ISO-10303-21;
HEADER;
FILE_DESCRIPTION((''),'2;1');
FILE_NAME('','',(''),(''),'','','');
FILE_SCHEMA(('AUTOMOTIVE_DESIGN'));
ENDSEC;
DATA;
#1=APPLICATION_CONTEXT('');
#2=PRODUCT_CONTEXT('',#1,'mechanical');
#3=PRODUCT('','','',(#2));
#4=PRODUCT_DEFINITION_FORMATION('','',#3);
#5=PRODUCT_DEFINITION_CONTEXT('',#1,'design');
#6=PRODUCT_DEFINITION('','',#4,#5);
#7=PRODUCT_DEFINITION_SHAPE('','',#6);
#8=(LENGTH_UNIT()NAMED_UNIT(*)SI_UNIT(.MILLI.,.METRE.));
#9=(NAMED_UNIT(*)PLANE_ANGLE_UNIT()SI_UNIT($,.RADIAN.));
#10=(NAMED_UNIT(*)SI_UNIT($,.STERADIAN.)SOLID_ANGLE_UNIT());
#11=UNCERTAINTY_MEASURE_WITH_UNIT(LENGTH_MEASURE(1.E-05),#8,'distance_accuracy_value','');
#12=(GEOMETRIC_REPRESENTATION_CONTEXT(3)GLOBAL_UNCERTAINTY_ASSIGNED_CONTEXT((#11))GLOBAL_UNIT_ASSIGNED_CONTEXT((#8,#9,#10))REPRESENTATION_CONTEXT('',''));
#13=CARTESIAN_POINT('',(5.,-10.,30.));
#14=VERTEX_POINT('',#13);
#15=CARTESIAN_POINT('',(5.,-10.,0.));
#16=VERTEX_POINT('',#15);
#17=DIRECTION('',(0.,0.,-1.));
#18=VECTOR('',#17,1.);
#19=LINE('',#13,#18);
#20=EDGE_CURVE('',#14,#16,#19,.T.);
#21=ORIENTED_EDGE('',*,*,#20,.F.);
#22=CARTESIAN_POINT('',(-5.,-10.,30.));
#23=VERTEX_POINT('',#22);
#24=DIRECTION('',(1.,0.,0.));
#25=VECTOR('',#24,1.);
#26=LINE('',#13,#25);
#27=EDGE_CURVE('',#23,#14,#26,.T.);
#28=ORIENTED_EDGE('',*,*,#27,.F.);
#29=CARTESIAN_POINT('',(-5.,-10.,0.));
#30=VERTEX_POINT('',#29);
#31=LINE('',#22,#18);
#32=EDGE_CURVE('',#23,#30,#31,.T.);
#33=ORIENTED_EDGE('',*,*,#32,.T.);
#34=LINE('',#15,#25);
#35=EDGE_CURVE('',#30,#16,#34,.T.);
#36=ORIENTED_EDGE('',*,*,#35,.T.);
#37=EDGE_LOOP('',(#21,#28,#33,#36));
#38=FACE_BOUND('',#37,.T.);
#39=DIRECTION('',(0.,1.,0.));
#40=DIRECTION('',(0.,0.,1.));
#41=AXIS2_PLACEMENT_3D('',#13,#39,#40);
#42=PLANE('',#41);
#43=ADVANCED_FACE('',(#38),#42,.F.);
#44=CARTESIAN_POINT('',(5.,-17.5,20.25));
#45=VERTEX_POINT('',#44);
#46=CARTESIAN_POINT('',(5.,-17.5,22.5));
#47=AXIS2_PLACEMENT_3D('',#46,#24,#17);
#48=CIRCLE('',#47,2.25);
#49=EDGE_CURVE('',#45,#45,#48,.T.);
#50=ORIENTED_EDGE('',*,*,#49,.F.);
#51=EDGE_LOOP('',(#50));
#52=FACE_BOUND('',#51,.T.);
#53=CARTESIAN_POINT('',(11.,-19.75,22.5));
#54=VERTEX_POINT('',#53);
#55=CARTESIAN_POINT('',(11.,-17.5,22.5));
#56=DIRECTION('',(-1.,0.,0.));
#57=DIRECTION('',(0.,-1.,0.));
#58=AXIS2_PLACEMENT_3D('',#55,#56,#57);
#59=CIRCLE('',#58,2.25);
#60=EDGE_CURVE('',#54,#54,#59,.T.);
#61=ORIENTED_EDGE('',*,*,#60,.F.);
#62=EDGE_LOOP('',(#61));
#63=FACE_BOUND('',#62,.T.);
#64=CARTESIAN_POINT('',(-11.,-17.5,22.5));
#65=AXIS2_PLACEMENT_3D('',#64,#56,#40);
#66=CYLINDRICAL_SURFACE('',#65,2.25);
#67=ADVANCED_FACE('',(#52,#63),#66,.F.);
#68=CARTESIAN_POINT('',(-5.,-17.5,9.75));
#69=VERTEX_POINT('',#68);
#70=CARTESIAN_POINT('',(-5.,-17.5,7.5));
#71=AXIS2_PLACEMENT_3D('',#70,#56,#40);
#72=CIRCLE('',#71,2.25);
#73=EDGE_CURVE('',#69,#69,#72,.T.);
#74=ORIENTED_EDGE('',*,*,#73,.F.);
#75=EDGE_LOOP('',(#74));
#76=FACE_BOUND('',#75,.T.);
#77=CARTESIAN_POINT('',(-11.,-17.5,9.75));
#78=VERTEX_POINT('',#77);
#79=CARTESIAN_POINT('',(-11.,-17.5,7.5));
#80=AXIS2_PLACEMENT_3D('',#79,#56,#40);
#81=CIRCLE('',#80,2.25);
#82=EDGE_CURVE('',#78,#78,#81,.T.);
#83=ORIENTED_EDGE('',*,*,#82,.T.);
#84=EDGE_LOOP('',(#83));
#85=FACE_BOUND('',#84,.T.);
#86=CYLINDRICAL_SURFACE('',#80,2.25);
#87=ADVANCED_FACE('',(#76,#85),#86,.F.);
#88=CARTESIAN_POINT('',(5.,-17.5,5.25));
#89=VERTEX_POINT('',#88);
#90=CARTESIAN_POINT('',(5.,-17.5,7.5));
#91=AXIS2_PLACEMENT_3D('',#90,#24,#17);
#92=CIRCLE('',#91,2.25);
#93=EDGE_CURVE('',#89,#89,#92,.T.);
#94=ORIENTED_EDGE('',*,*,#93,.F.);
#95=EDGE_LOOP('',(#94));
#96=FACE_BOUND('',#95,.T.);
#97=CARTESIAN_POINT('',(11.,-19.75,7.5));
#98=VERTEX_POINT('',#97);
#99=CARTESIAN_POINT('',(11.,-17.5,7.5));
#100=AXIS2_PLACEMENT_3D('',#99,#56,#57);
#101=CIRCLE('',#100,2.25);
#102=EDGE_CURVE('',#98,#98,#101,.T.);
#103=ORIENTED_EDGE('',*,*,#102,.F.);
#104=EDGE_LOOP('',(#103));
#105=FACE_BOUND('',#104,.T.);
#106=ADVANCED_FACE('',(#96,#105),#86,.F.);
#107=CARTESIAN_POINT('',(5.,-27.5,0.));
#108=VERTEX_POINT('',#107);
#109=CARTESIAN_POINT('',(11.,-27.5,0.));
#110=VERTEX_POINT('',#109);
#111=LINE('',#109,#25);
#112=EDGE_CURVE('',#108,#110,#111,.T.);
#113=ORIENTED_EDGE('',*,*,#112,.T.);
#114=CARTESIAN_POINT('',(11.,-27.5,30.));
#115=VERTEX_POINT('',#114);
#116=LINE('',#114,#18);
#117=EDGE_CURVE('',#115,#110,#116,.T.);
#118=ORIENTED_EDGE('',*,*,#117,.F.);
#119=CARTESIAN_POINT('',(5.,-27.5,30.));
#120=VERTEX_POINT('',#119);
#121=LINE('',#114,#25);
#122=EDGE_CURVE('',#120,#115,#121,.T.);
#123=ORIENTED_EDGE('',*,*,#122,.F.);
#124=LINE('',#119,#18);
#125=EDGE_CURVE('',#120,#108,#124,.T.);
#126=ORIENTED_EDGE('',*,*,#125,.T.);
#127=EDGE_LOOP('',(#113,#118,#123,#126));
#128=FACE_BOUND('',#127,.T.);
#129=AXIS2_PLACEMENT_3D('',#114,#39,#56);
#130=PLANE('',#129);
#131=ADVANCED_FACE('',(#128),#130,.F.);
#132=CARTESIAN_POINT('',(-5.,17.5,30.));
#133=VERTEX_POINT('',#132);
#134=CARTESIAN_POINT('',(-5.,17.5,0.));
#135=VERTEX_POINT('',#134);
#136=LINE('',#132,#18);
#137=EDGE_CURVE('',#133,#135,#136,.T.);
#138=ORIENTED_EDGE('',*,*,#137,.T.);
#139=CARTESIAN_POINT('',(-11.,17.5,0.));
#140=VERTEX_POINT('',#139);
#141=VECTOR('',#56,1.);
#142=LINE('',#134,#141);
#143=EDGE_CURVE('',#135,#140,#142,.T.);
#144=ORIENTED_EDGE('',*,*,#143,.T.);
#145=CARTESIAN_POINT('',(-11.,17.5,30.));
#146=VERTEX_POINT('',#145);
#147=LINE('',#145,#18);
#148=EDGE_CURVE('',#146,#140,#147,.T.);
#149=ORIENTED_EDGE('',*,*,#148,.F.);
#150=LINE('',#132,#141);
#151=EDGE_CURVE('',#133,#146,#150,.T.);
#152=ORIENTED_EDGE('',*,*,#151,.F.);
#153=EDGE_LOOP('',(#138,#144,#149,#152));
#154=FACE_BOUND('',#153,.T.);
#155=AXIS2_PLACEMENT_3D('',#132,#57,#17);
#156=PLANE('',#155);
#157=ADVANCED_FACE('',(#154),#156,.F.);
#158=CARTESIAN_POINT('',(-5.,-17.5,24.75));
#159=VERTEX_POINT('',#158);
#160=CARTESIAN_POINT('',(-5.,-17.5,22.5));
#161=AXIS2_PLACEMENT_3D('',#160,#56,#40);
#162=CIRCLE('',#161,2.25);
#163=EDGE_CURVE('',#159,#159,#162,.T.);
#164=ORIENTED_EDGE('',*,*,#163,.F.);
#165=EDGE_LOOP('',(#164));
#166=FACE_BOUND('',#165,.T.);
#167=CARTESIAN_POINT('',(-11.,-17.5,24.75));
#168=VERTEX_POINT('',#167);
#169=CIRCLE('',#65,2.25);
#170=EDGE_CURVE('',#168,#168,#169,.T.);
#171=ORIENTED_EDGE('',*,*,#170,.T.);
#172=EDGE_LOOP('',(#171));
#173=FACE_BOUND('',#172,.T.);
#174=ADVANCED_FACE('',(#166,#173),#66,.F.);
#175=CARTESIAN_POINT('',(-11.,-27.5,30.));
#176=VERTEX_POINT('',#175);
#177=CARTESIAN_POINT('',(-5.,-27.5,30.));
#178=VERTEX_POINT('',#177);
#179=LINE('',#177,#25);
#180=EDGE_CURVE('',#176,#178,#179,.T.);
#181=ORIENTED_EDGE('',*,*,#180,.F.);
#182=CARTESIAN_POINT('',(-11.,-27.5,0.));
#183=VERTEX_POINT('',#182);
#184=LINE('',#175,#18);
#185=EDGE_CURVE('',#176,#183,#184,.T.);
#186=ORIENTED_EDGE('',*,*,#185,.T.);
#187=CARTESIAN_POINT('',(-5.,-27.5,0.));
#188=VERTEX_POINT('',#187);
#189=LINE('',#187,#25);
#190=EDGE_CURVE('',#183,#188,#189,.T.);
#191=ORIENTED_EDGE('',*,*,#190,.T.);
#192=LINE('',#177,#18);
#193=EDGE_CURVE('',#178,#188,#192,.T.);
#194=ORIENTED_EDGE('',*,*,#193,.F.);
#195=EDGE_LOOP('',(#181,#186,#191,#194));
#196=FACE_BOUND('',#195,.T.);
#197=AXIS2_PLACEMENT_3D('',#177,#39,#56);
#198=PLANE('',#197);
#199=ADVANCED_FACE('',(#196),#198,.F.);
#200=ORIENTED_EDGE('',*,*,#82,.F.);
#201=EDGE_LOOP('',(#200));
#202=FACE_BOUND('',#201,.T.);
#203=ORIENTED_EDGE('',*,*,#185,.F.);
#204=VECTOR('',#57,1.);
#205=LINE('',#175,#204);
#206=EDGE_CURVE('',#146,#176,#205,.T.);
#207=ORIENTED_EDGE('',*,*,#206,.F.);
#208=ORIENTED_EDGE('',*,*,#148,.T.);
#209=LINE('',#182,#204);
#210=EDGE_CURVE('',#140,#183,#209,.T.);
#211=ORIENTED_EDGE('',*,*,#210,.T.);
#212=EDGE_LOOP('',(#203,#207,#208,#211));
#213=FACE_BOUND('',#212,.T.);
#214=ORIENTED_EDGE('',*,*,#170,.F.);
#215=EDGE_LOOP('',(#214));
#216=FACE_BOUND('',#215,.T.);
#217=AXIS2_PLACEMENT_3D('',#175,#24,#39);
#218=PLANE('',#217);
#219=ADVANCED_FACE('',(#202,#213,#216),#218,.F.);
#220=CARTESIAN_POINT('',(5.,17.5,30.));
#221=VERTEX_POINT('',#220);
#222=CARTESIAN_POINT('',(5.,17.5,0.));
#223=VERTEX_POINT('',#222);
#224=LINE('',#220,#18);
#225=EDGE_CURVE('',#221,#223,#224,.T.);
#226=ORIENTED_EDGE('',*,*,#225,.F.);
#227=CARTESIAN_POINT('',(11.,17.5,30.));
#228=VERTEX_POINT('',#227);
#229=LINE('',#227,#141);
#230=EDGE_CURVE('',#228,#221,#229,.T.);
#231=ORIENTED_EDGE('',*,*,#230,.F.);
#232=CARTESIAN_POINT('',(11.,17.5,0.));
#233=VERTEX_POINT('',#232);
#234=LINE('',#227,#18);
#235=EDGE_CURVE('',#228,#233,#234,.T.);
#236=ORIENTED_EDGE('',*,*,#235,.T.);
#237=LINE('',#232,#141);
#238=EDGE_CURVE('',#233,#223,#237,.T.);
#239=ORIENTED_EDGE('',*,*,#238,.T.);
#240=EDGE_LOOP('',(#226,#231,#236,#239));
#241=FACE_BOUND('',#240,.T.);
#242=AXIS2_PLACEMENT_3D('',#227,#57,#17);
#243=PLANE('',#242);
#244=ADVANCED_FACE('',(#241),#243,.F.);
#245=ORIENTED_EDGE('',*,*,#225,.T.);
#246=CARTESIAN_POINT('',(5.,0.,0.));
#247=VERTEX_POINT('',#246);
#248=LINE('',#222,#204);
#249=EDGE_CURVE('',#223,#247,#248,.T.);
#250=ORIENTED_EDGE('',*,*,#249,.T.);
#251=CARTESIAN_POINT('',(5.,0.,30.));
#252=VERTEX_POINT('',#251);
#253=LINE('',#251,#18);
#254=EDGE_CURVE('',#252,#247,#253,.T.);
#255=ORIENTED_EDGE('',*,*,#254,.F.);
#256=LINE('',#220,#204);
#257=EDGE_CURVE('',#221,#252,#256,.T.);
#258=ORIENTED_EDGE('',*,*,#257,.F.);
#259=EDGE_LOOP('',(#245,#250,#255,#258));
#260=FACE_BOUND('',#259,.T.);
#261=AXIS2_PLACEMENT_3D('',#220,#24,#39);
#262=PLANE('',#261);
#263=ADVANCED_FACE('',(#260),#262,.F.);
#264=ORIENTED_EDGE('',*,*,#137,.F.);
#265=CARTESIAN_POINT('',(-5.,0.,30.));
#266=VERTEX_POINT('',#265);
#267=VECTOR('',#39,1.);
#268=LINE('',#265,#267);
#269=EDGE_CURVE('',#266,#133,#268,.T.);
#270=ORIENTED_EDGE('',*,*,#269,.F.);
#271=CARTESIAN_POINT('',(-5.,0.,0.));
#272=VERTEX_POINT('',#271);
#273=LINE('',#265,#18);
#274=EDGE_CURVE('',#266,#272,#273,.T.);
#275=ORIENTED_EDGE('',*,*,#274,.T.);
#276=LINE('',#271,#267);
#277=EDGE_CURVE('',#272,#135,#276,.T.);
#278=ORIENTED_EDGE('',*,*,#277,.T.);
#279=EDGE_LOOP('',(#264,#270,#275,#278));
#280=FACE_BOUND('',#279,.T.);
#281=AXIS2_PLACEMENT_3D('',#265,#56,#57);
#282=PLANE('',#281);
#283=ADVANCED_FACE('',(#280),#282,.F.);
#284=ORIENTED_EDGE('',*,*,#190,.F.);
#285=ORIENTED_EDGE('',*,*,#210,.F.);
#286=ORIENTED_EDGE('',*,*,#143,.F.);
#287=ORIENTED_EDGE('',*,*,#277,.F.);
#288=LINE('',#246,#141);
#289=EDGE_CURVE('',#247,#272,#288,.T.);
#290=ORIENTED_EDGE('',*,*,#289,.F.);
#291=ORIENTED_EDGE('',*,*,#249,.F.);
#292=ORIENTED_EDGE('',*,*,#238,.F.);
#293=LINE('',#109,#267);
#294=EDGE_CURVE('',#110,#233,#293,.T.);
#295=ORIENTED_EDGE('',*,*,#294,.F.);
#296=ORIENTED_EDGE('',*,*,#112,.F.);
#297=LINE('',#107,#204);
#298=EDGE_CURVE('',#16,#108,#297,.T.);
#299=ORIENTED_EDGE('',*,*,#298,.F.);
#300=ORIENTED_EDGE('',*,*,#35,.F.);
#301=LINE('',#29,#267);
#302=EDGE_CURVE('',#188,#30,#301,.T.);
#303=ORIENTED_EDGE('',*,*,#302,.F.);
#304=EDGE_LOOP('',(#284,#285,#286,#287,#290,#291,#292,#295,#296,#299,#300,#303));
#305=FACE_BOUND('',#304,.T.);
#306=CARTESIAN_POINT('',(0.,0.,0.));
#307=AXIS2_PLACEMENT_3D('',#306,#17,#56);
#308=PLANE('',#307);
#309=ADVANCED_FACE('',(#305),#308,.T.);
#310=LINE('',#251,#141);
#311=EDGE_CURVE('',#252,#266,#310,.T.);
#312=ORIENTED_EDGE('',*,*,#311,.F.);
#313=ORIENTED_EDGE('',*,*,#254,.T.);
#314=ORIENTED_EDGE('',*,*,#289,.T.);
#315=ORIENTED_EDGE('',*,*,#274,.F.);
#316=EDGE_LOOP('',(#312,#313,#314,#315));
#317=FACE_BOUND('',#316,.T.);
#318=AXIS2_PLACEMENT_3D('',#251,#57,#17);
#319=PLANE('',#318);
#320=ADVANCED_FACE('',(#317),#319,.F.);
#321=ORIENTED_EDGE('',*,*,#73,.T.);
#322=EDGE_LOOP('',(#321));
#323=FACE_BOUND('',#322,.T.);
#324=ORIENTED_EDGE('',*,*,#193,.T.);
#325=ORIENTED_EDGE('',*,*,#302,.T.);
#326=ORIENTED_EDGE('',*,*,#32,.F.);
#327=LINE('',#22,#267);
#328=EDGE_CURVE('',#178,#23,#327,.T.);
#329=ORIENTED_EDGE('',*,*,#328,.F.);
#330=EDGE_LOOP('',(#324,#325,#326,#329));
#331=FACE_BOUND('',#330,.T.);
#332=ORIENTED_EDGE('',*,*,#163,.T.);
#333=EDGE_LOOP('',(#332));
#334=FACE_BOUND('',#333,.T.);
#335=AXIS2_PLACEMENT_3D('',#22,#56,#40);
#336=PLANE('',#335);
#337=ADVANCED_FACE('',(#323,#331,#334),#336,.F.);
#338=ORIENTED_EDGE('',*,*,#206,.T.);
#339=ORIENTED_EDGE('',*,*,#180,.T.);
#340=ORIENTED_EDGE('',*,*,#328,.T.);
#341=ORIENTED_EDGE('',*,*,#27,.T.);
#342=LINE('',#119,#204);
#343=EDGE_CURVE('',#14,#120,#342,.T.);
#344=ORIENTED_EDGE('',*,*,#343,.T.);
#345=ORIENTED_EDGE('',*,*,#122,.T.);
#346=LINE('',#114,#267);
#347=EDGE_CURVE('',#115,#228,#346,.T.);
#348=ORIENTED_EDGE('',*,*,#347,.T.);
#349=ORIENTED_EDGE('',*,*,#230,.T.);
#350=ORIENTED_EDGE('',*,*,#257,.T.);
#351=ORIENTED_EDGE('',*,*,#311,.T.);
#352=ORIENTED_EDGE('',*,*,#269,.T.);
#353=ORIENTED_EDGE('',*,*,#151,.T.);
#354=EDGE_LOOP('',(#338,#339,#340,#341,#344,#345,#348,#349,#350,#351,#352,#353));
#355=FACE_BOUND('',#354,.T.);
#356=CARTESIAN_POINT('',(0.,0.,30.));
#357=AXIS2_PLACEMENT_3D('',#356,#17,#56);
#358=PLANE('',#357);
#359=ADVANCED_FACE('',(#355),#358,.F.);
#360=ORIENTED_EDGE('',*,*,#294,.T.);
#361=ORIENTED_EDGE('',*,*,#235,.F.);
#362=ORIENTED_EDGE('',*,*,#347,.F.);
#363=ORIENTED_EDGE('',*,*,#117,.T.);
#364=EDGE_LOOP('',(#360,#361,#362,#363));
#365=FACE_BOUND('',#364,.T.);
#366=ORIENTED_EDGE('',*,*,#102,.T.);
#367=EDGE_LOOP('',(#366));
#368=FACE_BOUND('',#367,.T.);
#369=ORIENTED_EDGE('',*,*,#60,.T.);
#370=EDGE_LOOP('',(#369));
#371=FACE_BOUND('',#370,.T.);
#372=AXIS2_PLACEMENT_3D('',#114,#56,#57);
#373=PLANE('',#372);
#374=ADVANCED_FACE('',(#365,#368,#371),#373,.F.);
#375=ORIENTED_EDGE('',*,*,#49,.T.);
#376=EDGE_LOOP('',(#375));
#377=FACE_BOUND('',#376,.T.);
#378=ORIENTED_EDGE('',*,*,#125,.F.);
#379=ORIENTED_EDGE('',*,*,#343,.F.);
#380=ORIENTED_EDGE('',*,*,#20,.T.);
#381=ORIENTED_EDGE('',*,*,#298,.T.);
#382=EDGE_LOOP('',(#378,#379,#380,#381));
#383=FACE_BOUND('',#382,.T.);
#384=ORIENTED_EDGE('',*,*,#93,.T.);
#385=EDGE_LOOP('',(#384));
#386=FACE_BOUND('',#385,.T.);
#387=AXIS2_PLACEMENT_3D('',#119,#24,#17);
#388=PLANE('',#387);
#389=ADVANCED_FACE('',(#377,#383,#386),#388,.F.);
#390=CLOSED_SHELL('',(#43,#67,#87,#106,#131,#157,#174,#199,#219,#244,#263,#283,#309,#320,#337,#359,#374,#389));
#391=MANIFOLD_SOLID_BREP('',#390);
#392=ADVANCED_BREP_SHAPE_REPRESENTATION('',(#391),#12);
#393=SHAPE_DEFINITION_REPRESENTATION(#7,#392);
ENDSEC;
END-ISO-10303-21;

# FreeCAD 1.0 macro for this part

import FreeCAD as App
import Part
import Sketcher
from FreeCAD import Vector


def add_polygon(sketch, points):
    """Adds a closed chain of lines whose ends are joined by coincident constraints."""
    first, n = sketch.GeometryCount, len(points)
    for a, b in zip(points, points[1:] + points[:1]):
        sketch.addGeometry(Part.LineSegment(App.Vector(*a, 0), App.Vector(*b, 0)), False)
    for i in range(n):
        sketch.addConstraint(Sketcher.Constraint("Coincident", first + i, 2, first + (i + 1) % n, 1))

doc = App.newDocument("Part")
body = doc.addObject("PartDesign::Body", "Body")

# Sketch on XY plane
sketch1 = doc.addObject("Sketcher::SketchObject", "Sketch")
body.addObject(sketch1)
sketch1.AttachmentSupport = (doc.XY_Plane, [""])
sketch1.MapMode = "FlatFace"
add_polygon(sketch1, [(11, -27.5), (11, 17.5), (5, 17.5), (5, 0), (-5, 0), (-5, 17.5), (-11, 17.5), (-11, -27.5), (-5, -27.5), (-5, -10), (5, -10), (5, -27.5)])  # lines 0-11
sketch1.addConstraint([
    Sketcher.Constraint("Vertical", 0),
    Sketcher.Constraint("Horizontal", 1),
    Sketcher.Constraint("Vertical", 2),
    Sketcher.Constraint("Horizontal", 3),
    Sketcher.Constraint("Vertical", 4),
    Sketcher.Constraint("Horizontal", 5),
    Sketcher.Constraint("Vertical", 6),
    Sketcher.Constraint("Horizontal", 7),
    Sketcher.Constraint("Vertical", 8),
    Sketcher.Constraint("Horizontal", 9),
    Sketcher.Constraint("Vertical", 10),
    Sketcher.Constraint("Horizontal", 11),
    Sketcher.Constraint("Symmetric", 2, 2, 3, 2, -1, 1),
    Sketcher.Constraint("Symmetric", 0, 2, 5, 2, -2),
    Sketcher.Constraint("Symmetric", 7, 2, 10, 2, -2),
    Sketcher.Constraint("Vertical", 4, 2, 7, 2),
    Sketcher.Constraint("Equal", 4, 8),
    Sketcher.Constraint("DistanceX", 1, 2, 1, 1, 6.0),
    Sketcher.Constraint("DistanceX", 3, 2, 3, 1, 10.0),
    Sketcher.Constraint("DistanceY", 0, 1, 0, 2, 45.0),
    Sketcher.Constraint("DistanceY", 2, 2, 2, 1, 17.5),
])
pad1 = doc.addObject("PartDesign::Pad", "Pad")
body.addObject(pad1)
pad1.Profile = sketch1
pad1.Length = 30

# Sketch on YZ plane
sketch2 = doc.addObject("Sketcher::SketchObject", "Sketch001")
body.addObject(sketch2)
sketch2.AttachmentSupport = (doc.YZ_Plane, [""])
sketch2.MapMode = "FlatFace"
sketch2.AttachmentOffset = App.Placement(Vector(0, 0, -11), App.Rotation())
sketch2.addGeometry([
    Part.Circle(Vector(-17.5, 22.5, 0), Vector(0, 0, 1), 2.25),
    Part.Circle(Vector(-17.5, 7.5, 0), Vector(0, 0, 1), 2.25),
], False)
sketch2.addConstraint([
    Sketcher.Constraint("Equal", 0, 1),
    Sketcher.Constraint("Vertical", 0, 3, 1, 3),
    Sketcher.Constraint("Diameter", 0, 4.5),
    Sketcher.Constraint("DistanceY", 1, 3, 0, 3, 15.0),
    Sketcher.Constraint("DistanceX", 0, 3, -1, 1, 17.5),
    Sketcher.Constraint("DistanceY", -1, 1, 0, 3, 22.5),
])
doc.recompute()
hole = doc.addObject("PartDesign::Hole", "Hole")
body.addObject(hole)
hole.Profile = sketch2
hole.ThreadType = "None"
hole.Diameter = 4.5
hole.DepthType = "Dimension"
hole.Depth = 30
hole.DrillPoint = "Angled"
hole.DrillPointAngle = 118
hole.Reversed = True

doc.recompute()
